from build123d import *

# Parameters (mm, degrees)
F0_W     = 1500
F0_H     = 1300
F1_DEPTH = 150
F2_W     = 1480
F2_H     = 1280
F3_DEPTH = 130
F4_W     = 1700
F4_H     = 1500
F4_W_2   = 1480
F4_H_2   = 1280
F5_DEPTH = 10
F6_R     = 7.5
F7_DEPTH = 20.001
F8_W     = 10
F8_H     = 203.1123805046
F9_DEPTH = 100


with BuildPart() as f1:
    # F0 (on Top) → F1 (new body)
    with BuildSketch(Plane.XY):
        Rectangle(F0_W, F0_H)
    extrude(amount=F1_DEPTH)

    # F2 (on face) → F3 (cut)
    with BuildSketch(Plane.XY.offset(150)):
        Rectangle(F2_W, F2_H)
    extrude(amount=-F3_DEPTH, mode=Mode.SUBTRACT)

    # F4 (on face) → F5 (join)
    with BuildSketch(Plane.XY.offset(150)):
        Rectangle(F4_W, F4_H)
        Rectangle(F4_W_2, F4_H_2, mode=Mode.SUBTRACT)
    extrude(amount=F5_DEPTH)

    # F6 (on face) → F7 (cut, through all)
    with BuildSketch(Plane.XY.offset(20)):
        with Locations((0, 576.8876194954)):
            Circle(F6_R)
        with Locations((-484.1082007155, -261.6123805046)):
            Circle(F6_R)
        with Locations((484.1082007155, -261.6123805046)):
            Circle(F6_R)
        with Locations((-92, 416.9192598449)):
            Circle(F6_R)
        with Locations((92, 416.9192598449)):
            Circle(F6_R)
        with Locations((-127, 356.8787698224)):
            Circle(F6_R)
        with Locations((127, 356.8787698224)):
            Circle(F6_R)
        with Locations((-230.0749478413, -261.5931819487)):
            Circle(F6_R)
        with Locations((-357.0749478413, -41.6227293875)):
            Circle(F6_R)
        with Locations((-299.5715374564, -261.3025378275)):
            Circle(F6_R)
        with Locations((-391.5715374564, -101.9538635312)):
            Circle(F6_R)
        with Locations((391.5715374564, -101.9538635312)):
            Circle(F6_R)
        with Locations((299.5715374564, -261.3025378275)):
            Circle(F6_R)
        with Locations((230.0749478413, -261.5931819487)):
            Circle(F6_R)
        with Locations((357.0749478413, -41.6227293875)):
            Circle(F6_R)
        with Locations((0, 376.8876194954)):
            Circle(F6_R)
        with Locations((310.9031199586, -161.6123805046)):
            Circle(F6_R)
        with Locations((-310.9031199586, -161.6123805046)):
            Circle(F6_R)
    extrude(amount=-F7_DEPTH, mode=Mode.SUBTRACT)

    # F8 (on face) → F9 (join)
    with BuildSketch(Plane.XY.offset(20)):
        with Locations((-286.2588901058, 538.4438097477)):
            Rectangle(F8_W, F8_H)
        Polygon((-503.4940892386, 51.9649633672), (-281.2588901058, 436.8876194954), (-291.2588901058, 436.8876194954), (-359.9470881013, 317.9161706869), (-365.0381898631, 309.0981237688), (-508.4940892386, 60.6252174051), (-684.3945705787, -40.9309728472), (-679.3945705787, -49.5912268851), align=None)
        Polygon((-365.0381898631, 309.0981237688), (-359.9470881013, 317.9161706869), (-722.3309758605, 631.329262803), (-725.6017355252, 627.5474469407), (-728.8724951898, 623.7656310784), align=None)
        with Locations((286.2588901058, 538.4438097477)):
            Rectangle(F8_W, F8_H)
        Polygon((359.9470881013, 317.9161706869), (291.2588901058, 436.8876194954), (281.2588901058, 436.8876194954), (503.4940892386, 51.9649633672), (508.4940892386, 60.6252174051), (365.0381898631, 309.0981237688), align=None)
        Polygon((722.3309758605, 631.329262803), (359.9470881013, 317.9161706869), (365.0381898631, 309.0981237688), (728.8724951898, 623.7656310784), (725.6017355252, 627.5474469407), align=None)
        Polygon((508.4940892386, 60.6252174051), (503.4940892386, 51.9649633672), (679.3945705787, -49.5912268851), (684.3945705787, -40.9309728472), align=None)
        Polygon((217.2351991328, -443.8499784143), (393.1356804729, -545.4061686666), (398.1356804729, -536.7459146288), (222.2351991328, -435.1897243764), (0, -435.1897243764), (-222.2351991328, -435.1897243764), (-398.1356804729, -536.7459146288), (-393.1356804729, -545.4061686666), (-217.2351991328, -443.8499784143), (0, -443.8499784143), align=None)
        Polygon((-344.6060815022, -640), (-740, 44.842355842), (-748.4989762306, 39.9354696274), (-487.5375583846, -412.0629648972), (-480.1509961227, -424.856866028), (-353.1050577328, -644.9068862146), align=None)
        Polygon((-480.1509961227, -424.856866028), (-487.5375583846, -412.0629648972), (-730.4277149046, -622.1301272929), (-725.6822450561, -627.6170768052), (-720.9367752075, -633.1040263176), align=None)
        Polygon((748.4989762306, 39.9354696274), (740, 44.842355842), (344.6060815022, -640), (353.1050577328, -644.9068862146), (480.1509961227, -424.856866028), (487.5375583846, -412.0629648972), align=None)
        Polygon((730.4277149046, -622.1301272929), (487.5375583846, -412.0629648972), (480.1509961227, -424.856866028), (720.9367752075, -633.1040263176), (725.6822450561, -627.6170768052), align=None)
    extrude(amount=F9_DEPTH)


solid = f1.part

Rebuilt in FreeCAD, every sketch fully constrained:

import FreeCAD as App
import Part
import Sketcher
from FreeCAD import Vector
Q = App.Units.Quantity

doc = App.newDocument("Part")
params = doc.addObject("Spreadsheet::Sheet", "Params")
for row, (alias, value) in enumerate([
    ("sketch1_width", "1500 mm"),
    ("sketch1_height", "1300 mm"),
    ("pad1_length", "150 mm"),
    ("sketch2_width", "1480 mm"),
    ("sketch2_height", "1280 mm"),
    ("pocket1_length", "130 mm"),
    ("sketch3_width", "1700 mm"),
    ("sketch3_width2", "1480 mm"),
    ("sketch3_height", "1500 mm"),
    ("sketch3_height2", "1280 mm"),
    ("pad2_length", "10 mm"),
    ("sketch4_diameter", "15 mm"),
    ("sketch5_width", "10 mm"),
    ("sketch5_length", "5 mm"),
    ("sketch5_length2", "10 mm"),
    ("pad3_length", "100 mm"),
], start=1):
    params.set(f"A{row}", alias)
    params.set(f"B{row}", "=" + value)
    params.setAlias(f"B{row}", alias)

body = doc.addObject("PartDesign::Body", "Body")

sketch1 = doc.addObject("Sketcher::SketchObject", "Sketch")
body.addObject(sketch1)
sketch1.AttachmentSupport = (doc.XY_Plane, [""])
sketch1.MapMode = "FlatFace"
sketch1.addGeometry(Part.LineSegment(Vector(-750, 650, 0), Vector(-750, -650, 0)), False)
sketch1.addGeometry(Part.LineSegment(Vector(-750, -650, 0), Vector(750, -650, 0)), False)
sketch1.addGeometry(Part.LineSegment(Vector(750, -650, 0), Vector(750, 650, 0)), False)
sketch1.addGeometry(Part.LineSegment(Vector(750, 650, 0), Vector(-750, 650, 0)), False)
sketch1.addConstraint(Sketcher.Constraint("Coincident", 0, 2, 1, 1))
sketch1.addConstraint(Sketcher.Constraint("Coincident", 1, 2, 2, 1))
sketch1.addConstraint(Sketcher.Constraint("Coincident", 2, 2, 3, 1))
sketch1.addConstraint(Sketcher.Constraint("Coincident", 3, 2, 0, 1))
sketch1.addConstraint(Sketcher.Constraint("Vertical", 0))
sketch1.addConstraint(Sketcher.Constraint("Horizontal", 1))
sketch1.addConstraint(Sketcher.Constraint("Vertical", 2))
sketch1.addConstraint(Sketcher.Constraint("Horizontal", 3))
sketch1.addConstraint(Sketcher.Constraint("Symmetric", 0, 2, 2, 2, -1, 1))
sketch1.addConstraint(Sketcher.Constraint("DistanceX", 1, 1, 1, 2, 1500.0))
sketch1.addConstraint(Sketcher.Constraint("DistanceY", 0, 2, 0, 1, 1300.0))
sketch1.setExpression("Constraints[9]", "Params.sketch1_width")
sketch1.setExpression("Constraints[10]", "Params.sketch1_height")
pad1 = doc.addObject("PartDesign::Pad", "Pad")
body.addObject(pad1)
pad1.Profile = sketch1
pad1.setExpression("Length", "Params.pad1_length")

sketch2 = doc.addObject("Sketcher::SketchObject", "Sketch001")
body.addObject(sketch2)
sketch2.AttachmentSupport = (doc.XY_Plane, [""])
sketch2.MapMode = "FlatFace"
sketch2.AttachmentOffset = App.Placement(Vector(0, 0, 150), App.Rotation())
sketch2.addGeometry(Part.LineSegment(Vector(-740, 640, 0), Vector(-740, -640, 0)), False)
sketch2.addGeometry(Part.LineSegment(Vector(-740, -640, 0), Vector(740, -640, 0)), False)
sketch2.addGeometry(Part.LineSegment(Vector(740, -640, 0), Vector(740, 640, 0)), False)
sketch2.addGeometry(Part.LineSegment(Vector(740, 640, 0), Vector(-740, 640, 0)), False)
sketch2.addConstraint(Sketcher.Constraint("Coincident", 0, 2, 1, 1))
sketch2.addConstraint(Sketcher.Constraint("Coincident", 1, 2, 2, 1))
sketch2.addConstraint(Sketcher.Constraint("Coincident", 2, 2, 3, 1))
sketch2.addConstraint(Sketcher.Constraint("Coincident", 3, 2, 0, 1))
sketch2.addConstraint(Sketcher.Constraint("Vertical", 0))
sketch2.addConstraint(Sketcher.Constraint("Horizontal", 1))
sketch2.addConstraint(Sketcher.Constraint("Vertical", 2))
sketch2.addConstraint(Sketcher.Constraint("Horizontal", 3))
sketch2.addConstraint(Sketcher.Constraint("Symmetric", 0, 2, 2, 2, -1, 1))
sketch2.addConstraint(Sketcher.Constraint("DistanceX", 1, 1, 1, 2, 1480.0))
sketch2.addConstraint(Sketcher.Constraint("DistanceY", 0, 2, 0, 1, 1280.0))
sketch2.setExpression("Constraints[9]", "Params.sketch2_width")
sketch2.setExpression("Constraints[10]", "Params.sketch2_height")
pocket1 = doc.addObject("PartDesign::Pocket", "Pocket")
body.addObject(pocket1)
pocket1.Profile = sketch2
pocket1.setExpression("Length", "Params.pocket1_length")

sketch3 = doc.addObject("Sketcher::SketchObject", "Sketch002")
body.addObject(sketch3)
sketch3.AttachmentSupport = (doc.XY_Plane, [""])
sketch3.MapMode = "FlatFace"
sketch3.AttachmentOffset = App.Placement(Vector(0, 0, 150), App.Rotation())
sketch3.addGeometry(Part.LineSegment(Vector(-850, 750, 0), Vector(-850, -750, 0)), False)
sketch3.addGeometry(Part.LineSegment(Vector(-850, -750, 0), Vector(850, -750, 0)), False)
sketch3.addGeometry(Part.LineSegment(Vector(850, -750, 0), Vector(850, 750, 0)), False)
sketch3.addGeometry(Part.LineSegment(Vector(850, 750, 0), Vector(-850, 750, 0)), False)
sketch3.addGeometry(Part.LineSegment(Vector(740, -640, 0), Vector(-740, -640, 0)), False)
sketch3.addGeometry(Part.LineSegment(Vector(-740, -640, 0), Vector(-740, 640, 0)), False)
sketch3.addGeometry(Part.LineSegment(Vector(-740, 640, 0), Vector(740, 640, 0)), False)
sketch3.addGeometry(Part.LineSegment(Vector(740, 640, 0), Vector(740, -640, 0)), False)
sketch3.addConstraint(Sketcher.Constraint("Coincident", 0, 2, 1, 1))
sketch3.addConstraint(Sketcher.Constraint("Coincident", 1, 2, 2, 1))
sketch3.addConstraint(Sketcher.Constraint("Coincident", 2, 2, 3, 1))
sketch3.addConstraint(Sketcher.Constraint("Coincident", 3, 2, 0, 1))
sketch3.addConstraint(Sketcher.Constraint("Coincident", 4, 2, 5, 1))
sketch3.addConstraint(Sketcher.Constraint("Coincident", 5, 2, 6, 1))
sketch3.addConstraint(Sketcher.Constraint("Coincident", 6, 2, 7, 1))
sketch3.addConstraint(Sketcher.Constraint("Coincident", 7, 2, 4, 1))
sketch3.addConstraint(Sketcher.Constraint("Vertical", 0))
sketch3.addConstraint(Sketcher.Constraint("Horizontal", 1))
sketch3.addConstraint(Sketcher.Constraint("Vertical", 2))
sketch3.addConstraint(Sketcher.Constraint("Horizontal", 3))
sketch3.addConstraint(Sketcher.Constraint("Horizontal", 4))
sketch3.addConstraint(Sketcher.Constraint("Vertical", 5))
sketch3.addConstraint(Sketcher.Constraint("Horizontal", 6))
sketch3.addConstraint(Sketcher.Constraint("Vertical", 7))
sketch3.addConstraint(Sketcher.Constraint("Symmetric", 0, 2, 2, 2, -1, 1))
sketch3.addConstraint(Sketcher.Constraint("Symmetric", 4, 2, 6, 2, -1, 1))
sketch3.addConstraint(Sketcher.Constraint("DistanceX", 1, 1, 1, 2, 1700.0))
sketch3.addConstraint(Sketcher.Constraint("DistanceX", 4, 2, 4, 1, 1480.0))
sketch3.addConstraint(Sketcher.Constraint("DistanceY", 0, 2, 0, 1, 1500.0))
sketch3.addConstraint(Sketcher.Constraint("DistanceY", 5, 1, 5, 2, 1280.0))
sketch3.setExpression("Constraints[18]", "Params.sketch3_width")
sketch3.setExpression("Constraints[19]", "Params.sketch3_width2")
sketch3.setExpression("Constraints[20]", "Params.sketch3_height")
sketch3.setExpression("Constraints[21]", "Params.sketch3_height2")
pad2 = doc.addObject("PartDesign::Pad", "Pad001")
body.addObject(pad2)
pad2.Profile = sketch3
pad2.setExpression("Length", "Params.pad2_length")

sketch4 = doc.addObject("Sketcher::SketchObject", "Sketch003")
body.addObject(sketch4)
sketch4.AttachmentSupport = (doc.XY_Plane, [""])
sketch4.MapMode = "FlatFace"
sketch4.AttachmentOffset = App.Placement(Vector(0, 0, 20), App.Rotation())
sketch4.addGeometry(Part.Circle(Vector(0, 577, 0), Vector(0, 0, 1), 8), False)
sketch4.addGeometry(Part.Circle(Vector(-484, -262, 0), Vector(0, 0, 1), 8), False)
sketch4.addGeometry(Part.Circle(Vector(484, -262, 0), Vector(0, 0, 1), 8), False)
sketch4.addGeometry(Part.Circle(Vector(-92, 417, 0), Vector(0, 0, 1), 8), False)
sketch4.addGeometry(Part.Circle(Vector(92, 417, 0), Vector(0, 0, 1), 8), False)
sketch4.addGeometry(Part.Circle(Vector(-127, 357, 0), Vector(0, 0, 1), 8), False)
sketch4.addGeometry(Part.Circle(Vector(127, 357, 0), Vector(0, 0, 1), 8), False)
sketch4.addGeometry(Part.Circle(Vector(-230, -262, 0), Vector(0, 0, 1), 8), False)
sketch4.addGeometry(Part.Circle(Vector(-357, -42, 0), Vector(0, 0, 1), 8), False)
sketch4.addGeometry(Part.Circle(Vector(-300, -261, 0), Vector(0, 0, 1), 8), False)
sketch4.addGeometry(Part.Circle(Vector(-392, -102, 0), Vector(0, 0, 1), 8), False)
sketch4.addGeometry(Part.Circle(Vector(392, -102, 0), Vector(0, 0, 1), 8), False)
sketch4.addGeometry(Part.Circle(Vector(300, -261, 0), Vector(0, 0, 1), 8), False)
sketch4.addGeometry(Part.Circle(Vector(230, -262, 0), Vector(0, 0, 1), 8), False)
sketch4.addGeometry(Part.Circle(Vector(357, -42, 0), Vector(0, 0, 1), 8), False)
sketch4.addGeometry(Part.Circle(Vector(0, 377, 0), Vector(0, 0, 1), 8), False)
sketch4.addGeometry(Part.Circle(Vector(311, -162, 0), Vector(0, 0, 1), 8), False)
sketch4.addGeometry(Part.Circle(Vector(-311, -162, 0), Vector(0, 0, 1), 8), False)
sketch4.addConstraint(Sketcher.Constraint("Equal", 0, 1))
sketch4.addConstraint(Sketcher.Constraint("Equal", 1, 2))
sketch4.addConstraint(Sketcher.Constraint("Equal", 2, 3))
sketch4.addConstraint(Sketcher.Constraint("Equal", 3, 4))
sketch4.addConstraint(Sketcher.Constraint("Equal", 4, 5))
sketch4.addConstraint(Sketcher.Constraint("Equal", 5, 6))
sketch4.addConstraint(Sketcher.Constraint("Equal", 6, 7))
sketch4.addConstraint(Sketcher.Constraint("Equal", 7, 8))
sketch4.addConstraint(Sketcher.Constraint("Equal", 8, 9))
sketch4.addConstraint(Sketcher.Constraint("Equal", 9, 10))
sketch4.addConstraint(Sketcher.Constraint("Equal", 10, 11))
sketch4.addConstraint(Sketcher.Constraint("Equal", 11, 12))
sketch4.addConstraint(Sketcher.Constraint("Equal", 12, 13))
sketch4.addConstraint(Sketcher.Constraint("Equal", 13, 14))
sketch4.addConstraint(Sketcher.Constraint("Equal", 14, 15))
sketch4.addConstraint(Sketcher.Constraint("Equal", 15, 16))
sketch4.addConstraint(Sketcher.Constraint("Equal", 16, 17))
sketch4.addConstraint(Sketcher.Constraint("Symmetric", 1, 3, 2, 3, -2))
sketch4.addConstraint(Sketcher.Constraint("Symmetric", 3, 3, 4, 3, -2))
sketch4.addConstraint(Sketcher.Constraint("Symmetric", 5, 3, 6, 3, -2))
sketch4.addConstraint(Sketcher.Constraint("Symmetric", 10, 3, 11, 3, -2))
sketch4.addConstraint(Sketcher.Constraint("Symmetric", 9, 3, 12, 3, -2))
sketch4.addConstraint(Sketcher.Constraint("Symmetric", 7, 3, 13, 3, -2))
sketch4.addConstraint(Sketcher.Constraint("Symmetric", 8, 3, 14, 3, -2))
sketch4.addConstraint(Sketcher.Constraint("Symmetric", 16, 3, 17, 3, -2))
sketch4.addConstraint(Sketcher.Constraint("PointOnObject", 0, 3, -2))
sketch4.addConstraint(Sketcher.Constraint("PointOnObject", 15, 3, -2))
sketch4.addConstraint(Sketcher.Constraint("Diameter", 0, 15.0))
sketch4.addConstraint(Sketcher.Constraint("DistanceX", 3, 3, -1, 1, 92.0))
sketch4.addConstraint(Sketcher.Constraint("DistanceX", 5, 3, -1, 1, 127.0))
sketch4.addConstraint(Sketcher.Constraint("DistanceX", 8, 3, 7, 3, 127.0))
sketch4.addConstraint(Sketcher.Constraint("DistanceX", 10, 3, 9, 3, 92.0))
sketch4.addConstraint(Sketcher.Constraint("DistanceY", 15, 3, 0, 3, 200.0))
sketch4.addConstraint(Sketcher.Constraint("DistanceY", 2, 3, 16, 3, 100.0))
sketch4.addConstraint(Sketcher.Constraint("DistanceY", 1, 3, 0, 3, 838.5))
sketch4.addConstraint(Sketcher.Constraint("DistanceX", 1, 3, -1, 1, 484.108201))
sketch4.addConstraint(Sketcher.Constraint("DistanceY", 1, 3, 7, 3, 0.019199))
sketch4.addConstraint(Sketcher.Constraint("DistanceY", 8, 3, 5, 3, 398.501499))
sketch4.addConstraint(Sketcher.Constraint("DistanceY", -1, 1, 0, 3, 576.887619))
sketch4.addConstraint(Sketcher.Constraint("DistanceY", -1, 1, 3, 3, 416.91926))
sketch4.addConstraint(Sketcher.Constraint("DistanceY", -1, 1, 5, 3, 356.87877))
sketch4.addConstraint(Sketcher.Constraint("DistanceX", -1, 1, 16, 3, 310.90312))
sketch4.addConstraint(Sketcher.Constraint("DistanceX", 7, 3, 2, 3, 714.183149))
sketch4.addConstraint(Sketcher.Constraint("DistanceX", 9, 3, 7, 3, 69.49659))
sketch4.addConstraint(Sketcher.Constraint("DistanceY", 9, 3, 8, 3, 219.679808))
sketch4.addConstraint(Sketcher.Constraint("DistanceY", 7, 3, 10, 3, 159.639318))
sketch4.setExpression("Constraints[27]", "Params.sketch4_diameter")
pocket2 = doc.addObject("PartDesign::Pocket", "Pocket001")
body.addObject(pocket2)
pocket2.Profile = sketch4
pocket2.Type = "ThroughAll"

sketch5 = doc.addObject("Sketcher::SketchObject", "Sketch004")
body.addObject(sketch5)
sketch5.AttachmentSupport = (doc.XY_Plane, [""])
sketch5.MapMode = "FlatFace"
sketch5.AttachmentOffset = App.Placement(Vector(0, 0, 20), App.Rotation())
sketch5.addGeometry(Part.LineSegment(Vector(-291, 640, 0), Vector(-291, 437, 0)), False)
sketch5.addGeometry(Part.LineSegment(Vector(-291, 437, 0), Vector(-360, 318, 0)), False)
sketch5.addGeometry(Part.LineSegment(Vector(-360, 318, 0), Vector(-722, 631, 0)), False)
sketch5.addGeometry(Part.LineSegment(Vector(-722, 631, 0), Vector(-726, 628, 0)), False)
sketch5.addGeometry(Part.LineSegment(Vector(-726, 628, 0), Vector(-729, 624, 0)), False)
sketch5.addGeometry(Part.LineSegment(Vector(-729, 624, 0), Vector(-365, 309, 0)), False)
sketch5.addGeometry(Part.LineSegment(Vector(-365, 309, 0), Vector(-508, 61, 0)), False)
sketch5.addGeometry(Part.LineSegment(Vector(-508, 61, 0), Vector(-684, -41, 0)), False)
sketch5.addGeometry(Part.LineSegment(Vector(-684, -41, 0), Vector(-679, -50, 0)), False)
sketch5.addGeometry(Part.LineSegment(Vector(-679, -50, 0), Vector(-503, 52, 0)), False)
sketch5.addGeometry(Part.LineSegment(Vector(-503, 52, 0), Vector(-281, 437, 0)), False)
sketch5.addGeometry(Part.LineSegment(Vector(-281, 437, 0), Vector(-281, 640, 0)), False)
sketch5.addGeometry(Part.LineSegment(Vector(-281, 640, 0), Vector(-291, 640, 0)), False)
sketch5.addGeometry(Part.LineSegment(Vector(281, 640, 0), Vector(281, 437, 0)), False)
sketch5.addGeometry(Part.LineSegment(Vector(281, 437, 0), Vector(503, 52, 0)), False)
sketch5.addGeometry(Part.LineSegment(Vector(503, 52, 0), Vector(679, -50, 0)), False)
sketch5.addGeometry(Part.LineSegment(Vector(679, -50, 0), Vector(684, -41, 0)), False)
sketch5.addGeometry(Part.LineSegment(Vector(684, -41, 0), Vector(508, 61, 0)), False)
sketch5.addGeometry(Part.LineSegment(Vector(508, 61, 0), Vector(365, 309, 0)), False)
sketch5.addGeometry(Part.LineSegment(Vector(365, 309, 0), Vector(729, 624, 0)), False)
sketch5.addGeometry(Part.LineSegment(Vector(729, 624, 0), Vector(726, 628, 0)), False)
sketch5.addGeometry(Part.LineSegment(Vector(726, 628, 0), Vector(722, 631, 0)), False)
sketch5.addGeometry(Part.LineSegment(Vector(722, 631, 0), Vector(360, 318, 0)), False)
sketch5.addGeometry(Part.LineSegment(Vector(360, 318, 0), Vector(291, 437, 0)), False)
sketch5.addGeometry(Part.LineSegment(Vector(291, 437, 0), Vector(291, 640, 0)), False)
sketch5.addGeometry(Part.LineSegment(Vector(291, 640, 0), Vector(281, 640, 0)), False)
sketch5.addGeometry(Part.LineSegment(Vector(217, -444, 0), Vector(393, -545, 0)), False)
sketch5.addGeometry(Part.LineSegment(Vector(393, -545, 0), Vector(398, -537, 0)), False)
sketch5.addGeometry(Part.LineSegment(Vector(398, -537, 0), Vector(222, -435, 0)), False)
sketch5.addGeometry(Part.LineSegment(Vector(222, -435, 0), Vector(-222, -435, 0)), False)
sketch5.addGeometry(Part.LineSegment(Vector(-222, -435, 0), Vector(-398, -537, 0)), False)
sketch5.addGeometry(Part.LineSegment(Vector(-398, -537, 0), Vector(-393, -545, 0)), False)
sketch5.addGeometry(Part.LineSegment(Vector(-393, -545, 0), Vector(-217, -444, 0)), False)
sketch5.addGeometry(Part.LineSegment(Vector(-217, -444, 0), Vector(217, -444, 0)), False)
sketch5.addGeometry(Part.LineSegment(Vector(-345, -640, 0), Vector(-740, 45, 0)), False)
sketch5.addGeometry(Part.LineSegment(Vector(-740, 45, 0), Vector(-748, 40, 0)), False)
sketch5.addGeometry(Part.LineSegment(Vector(-748, 40, 0), Vector(-488, -412, 0)), False)
sketch5.addGeometry(Part.LineSegment(Vector(-488, -412, 0), Vector(-730, -622, 0)), False)
sketch5.addGeometry(Part.LineSegment(Vector(-730, -622, 0), Vector(-726, -628, 0)), False)
sketch5.addGeometry(Part.LineSegment(Vector(-726, -628, 0), Vector(-721, -633, 0)), False)
sketch5.addGeometry(Part.LineSegment(Vector(-721, -633, 0), Vector(-480, -425, 0)), False)
sketch5.addGeometry(Part.LineSegment(Vector(-480, -425, 0), Vector(-353, -645, 0)), False)
sketch5.addGeometry(Part.LineSegment(Vector(-353, -645, 0), Vector(-345, -640, 0)), False)
sketch5.addGeometry(Part.LineSegment(Vector(748, 40, 0), Vector(740, 45, 0)), False)
sketch5.addGeometry(Part.LineSegment(Vector(740, 45, 0), Vector(345, -640, 0)), False)
sketch5.addGeometry(Part.LineSegment(Vector(345, -640, 0), Vector(353, -645, 0)), False)
sketch5.addGeometry(Part.LineSegment(Vector(353, -645, 0), Vector(480, -425, 0)), False)
sketch5.addGeometry(Part.LineSegment(Vector(480, -425, 0), Vector(721, -633, 0)), False)
sketch5.addGeometry(Part.LineSegment(Vector(721, -633, 0), Vector(726, -628, 0)), False)
sketch5.addGeometry(Part.LineSegment(Vector(726, -628, 0), Vector(730, -622, 0)), False)
sketch5.addGeometry(Part.LineSegment(Vector(730, -622, 0), Vector(488, -412, 0)), False)
sketch5.addGeometry(Part.LineSegment(Vector(488, -412, 0), Vector(748, 40, 0)), False)
sketch5.addConstraint(Sketcher.Constraint("Coincident", 0, 2, 1, 1))
sketch5.addConstraint(Sketcher.Constraint("Coincident", 1, 2, 2, 1))
sketch5.addConstraint(Sketcher.Constraint("Coincident", 2, 2, 3, 1))
sketch5.addConstraint(Sketcher.Constraint("Coincident", 3, 2, 4, 1))
sketch5.addConstraint(Sketcher.Constraint("Coincident", 4, 2, 5, 1))
sketch5.addConstraint(Sketcher.Constraint("Coincident", 5, 2, 6, 1))
sketch5.addConstraint(Sketcher.Constraint("Coincident", 6, 2, 7, 1))
sketch5.addConstraint(Sketcher.Constraint("Coincident", 7, 2, 8, 1))
sketch5.addConstraint(Sketcher.Constraint("Coincident", 8, 2, 9, 1))
sketch5.addConstraint(Sketcher.Constraint("Coincident", 9, 2, 10, 1))
sketch5.addConstraint(Sketcher.Constraint("Coincident", 10, 2, 11, 1))
sketch5.addConstraint(Sketcher.Constraint("Coincident", 11, 2, 12, 1))
sketch5.addConstraint(Sketcher.Constraint("Coincident", 12, 2, 0, 1))
sketch5.addConstraint(Sketcher.Constraint("Coincident", 13, 2, 14, 1))
sketch5.addConstraint(Sketcher.Constraint("Coincident", 14, 2, 15, 1))
sketch5.addConstraint(Sketcher.Constraint("Coincident", 15, 2, 16, 1))
sketch5.addConstraint(Sketcher.Constraint("Coincident", 16, 2, 17, 1))
sketch5.addConstraint(Sketcher.Constraint("Coincident", 17, 2, 18, 1))
sketch5.addConstraint(Sketcher.Constraint("Coincident", 18, 2, 19, 1))
sketch5.addConstraint(Sketcher.Constraint("Coincident", 19, 2, 20, 1))
sketch5.addConstraint(Sketcher.Constraint("Coincident", 20, 2, 21, 1))
sketch5.addConstraint(Sketcher.Constraint("Coincident", 21, 2, 22, 1))
sketch5.addConstraint(Sketcher.Constraint("Coincident", 22, 2, 23, 1))
sketch5.addConstraint(Sketcher.Constraint("Coincident", 23, 2, 24, 1))
sketch5.addConstraint(Sketcher.Constraint("Coincident", 24, 2, 25, 1))
sketch5.addConstraint(Sketcher.Constraint("Coincident", 25, 2, 13, 1))
sketch5.addConstraint(Sketcher.Constraint("Coincident", 26, 2, 27, 1))
sketch5.addConstraint(Sketcher.Constraint("Coincident", 27, 2, 28, 1))
sketch5.addConstraint(Sketcher.Constraint("Coincident", 28, 2, 29, 1))
sketch5.addConstraint(Sketcher.Constraint("Coincident", 29, 2, 30, 1))
sketch5.addConstraint(Sketcher.Constraint("Coincident", 30, 2, 31, 1))
sketch5.addConstraint(Sketcher.Constraint("Coincident", 31, 2, 32, 1))
sketch5.addConstraint(Sketcher.Constraint("Coincident", 32, 2, 33, 1))
sketch5.addConstraint(Sketcher.Constraint("Coincident", 33, 2, 26, 1))
sketch5.addConstraint(Sketcher.Constraint("Coincident", 34, 2, 35, 1))
sketch5.addConstraint(Sketcher.Constraint("Coincident", 35, 2, 36, 1))
sketch5.addConstraint(Sketcher.Constraint("Coincident", 36, 2, 37, 1))
sketch5.addConstraint(Sketcher.Constraint("Coincident", 37, 2, 38, 1))
sketch5.addConstraint(Sketcher.Constraint("Coincident", 38, 2, 39, 1))
sketch5.addConstraint(Sketcher.Constraint("Coincident", 39, 2, 40, 1))
sketch5.addConstraint(Sketcher.Constraint("Coincident", 40, 2, 41, 1))
sketch5.addConstraint(Sketcher.Constraint("Coincident", 41, 2, 42, 1))
sketch5.addConstraint(Sketcher.Constraint("Coincident", 42, 2, 34, 1))
sketch5.addConstraint(Sketcher.Constraint("Coincident", 43, 2, 44, 1))
sketch5.addConstraint(Sketcher.Constraint("Coincident", 44, 2, 45, 1))
sketch5.addConstraint(Sketcher.Constraint("Coincident", 45, 2, 46, 1))
sketch5.addConstraint(Sketcher.Constraint("Coincident", 46, 2, 47, 1))
sketch5.addConstraint(Sketcher.Constraint("Coincident", 47, 2, 48, 1))
sketch5.addConstraint(Sketcher.Constraint("Coincident", 48, 2, 49, 1))
sketch5.addConstraint(Sketcher.Constraint("Coincident", 49, 2, 50, 1))
sketch5.addConstraint(Sketcher.Constraint("Coincident", 50, 2, 51, 1))
sketch5.addConstraint(Sketcher.Constraint("Coincident", 51, 2, 43, 1))
sketch5.addConstraint(Sketcher.Constraint("Vertical", 0))
sketch5.addConstraint(Sketcher.Constraint("Vertical", 11))
sketch5.addConstraint(Sketcher.Constraint("Horizontal", 12))
sketch5.addConstraint(Sketcher.Constraint("Vertical", 13))
sketch5.addConstraint(Sketcher.Constraint("Vertical", 24))
sketch5.addConstraint(Sketcher.Constraint("Horizontal", 25))
sketch5.addConstraint(Sketcher.Constraint("Horizontal", 29))
sketch5.addConstraint(Sketcher.Constraint("Horizontal", 33))
sketch5.addConstraint(Sketcher.Constraint("Symmetric", 10, 2, 13, 2, -2))
sketch5.addConstraint(Sketcher.Constraint("Symmetric", 9, 2, 14, 2, -2))
sketch5.addConstraint(Sketcher.Constraint("Symmetric", 8, 2, 15, 2, -2))
sketch5.addConstraint(Sketcher.Constraint("Symmetric", 7, 2, 16, 2, -2))
sketch5.addConstraint(Sketcher.Constraint("Symmetric", 6, 2, 17, 2, -2))
sketch5.addConstraint(Sketcher.Constraint("Symmetric", 5, 2, 18, 2, -2))
sketch5.addConstraint(Sketcher.Constraint("Symmetric", 4, 2, 19, 2, -2))
sketch5.addConstraint(Sketcher.Constraint("Symmetric", 3, 2, 20, 2, -2))
sketch5.addConstraint(Sketcher.Constraint("Symmetric", 2, 2, 21, 2, -2))
sketch5.addConstraint(Sketcher.Constraint("Symmetric", 1, 2, 22, 2, -2))
sketch5.addConstraint(Sketcher.Constraint("Symmetric", 0, 2, 23, 2, -2))
sketch5.addConstraint(Sketcher.Constraint("Symmetric", 27, 2, 30, 2, -2))
sketch5.addConstraint(Sketcher.Constraint("Symmetric", 26, 2, 31, 2, -2))
sketch5.addConstraint(Sketcher.Constraint("Symmetric", 34, 2, 43, 2, -2))
sketch5.addConstraint(Sketcher.Constraint("Symmetric", 42, 2, 44, 2, -2))
sketch5.addConstraint(Sketcher.Constraint("Symmetric", 41, 2, 45, 2, -2))
sketch5.addConstraint(Sketcher.Constraint("Symmetric", 40, 2, 46, 2, -2))
sketch5.addConstraint(Sketcher.Constraint("Symmetric", 39, 2, 47, 2, -2))
sketch5.addConstraint(Sketcher.Constraint("Symmetric", 38, 2, 48, 2, -2))
sketch5.addConstraint(Sketcher.Constraint("Symmetric", 37, 2, 49, 2, -2))
sketch5.addConstraint(Sketcher.Constraint("Symmetric", 36, 2, 50, 2, -2))
sketch5.addConstraint(Sketcher.Constraint("Symmetric", 35, 2, 51, 2, -2))
sketch5.addConstraint(Sketcher.Constraint("Perpendicular", 2, 3))
sketch5.addConstraint(Sketcher.Constraint("Parallel", 3, 4))
sketch5.addConstraint(Sketcher.Constraint("Perpendicular", 4, 5))
sketch5.addConstraint(Sketcher.Constraint("Parallel", 1, 6))
sketch5.addConstraint(Sketcher.Constraint("Perpendicular", 7, 8))
sketch5.addConstraint(Sketcher.Constraint("Perpendicular", 8, 9))
sketch5.addConstraint(Sketcher.Constraint("Parallel", 6, 10))
sketch5.addConstraint(Sketcher.Constraint("Perpendicular", 9, 14))
sketch5.addConstraint(Sketcher.Constraint("Parallel", 17, 26))
sketch5.addConstraint(Sketcher.Constraint("Perpendicular", 26, 27))
sketch5.addConstraint(Sketcher.Constraint("Perpendicular", 27, 28))
sketch5.addConstraint(Sketcher.Constraint("Perpendicular", 23, 30))
sketch5.addConstraint(Sketcher.Constraint("Perpendicular", 31, 32))
sketch5.addConstraint(Sketcher.Constraint("Perpendicular", 32, 34))
sketch5.addConstraint(Sketcher.Constraint("Perpendicular", 34, 35))
sketch5.addConstraint(Sketcher.Constraint("Perpendicular", 35, 36))
sketch5.addConstraint(Sketcher.Constraint("Parallel", 22, 37))
sketch5.addConstraint(Sketcher.Constraint("Perpendicular", 37, 38))
sketch5.addConstraint(Sketcher.Constraint("Parallel", 38, 39))
sketch5.addConstraint(Sketcher.Constraint("Perpendicular", 39, 40))
sketch5.addConstraint(Sketcher.Constraint("Parallel", 36, 41))
sketch5.addConstraint(Sketcher.Constraint("Perpendicular", 41, 42))
sketch5.addConstraint(Sketcher.Constraint("Horizontal", 0, 2, 10, 2))
sketch5.addConstraint(Sketcher.Constraint("Horizontal", 12, 2, 24, 2))
sketch5.addConstraint(Sketcher.Constraint("Equal", 3, 4))
sketch5.addConstraint(Sketcher.Constraint("Equal", 7, 9))
sketch5.addConstraint(Sketcher.Constraint("Equal", 17, 26))
sketch5.addConstraint(Sketcher.Constraint("Equal", 16, 27))
sketch5.addConstraint(Sketcher.Constraint("Equal", 26, 28))
sketch5.addConstraint(Sketcher.Constraint("Equal", 38, 39))
sketch5.addConstraint(Sketcher.Constraint("Equal", 35, 42))
sketch5.addConstraint(Sketcher.Constraint("DistanceX", 12, 2, 12, 1, 10.0))
sketch5.addConstraint(Sketcher.Constraint("Angle", 1, Q("-120 deg")))
sketch5.addConstraint(Sketcher.Constraint("Distance", 3, 5.0))
sketch5.addConstraint(Sketcher.Constraint("Distance", 8, 10.0))
sketch5.addConstraint(Sketcher.Constraint("DistanceY", -1, 1, 11, 2, 640.0))
sketch5.addConstraint(Sketcher.Constraint("DistanceX", 34, 2, -1, 1, 740.0))
sketch5.addConstraint(Sketcher.Constraint("DistanceY", 42, 2, -1, 1, 640.0))
sketch5.addConstraint(Sketcher.Constraint("DistanceX", 29, 2, 29, 1, 444.470398))
sketch5.addConstraint(Sketcher.Constraint("DistanceX", 6, 2, 1, 2, 148.547001))
sketch5.addConstraint(Sketcher.Constraint("Distance", 10, 444.470398))
sketch5.addConstraint(Sketcher.Constraint("DistanceY", 0, 2, 0, 1, 203.112381))
sketch5.addConstraint(Sketcher.Constraint("DistanceY", 39, 2, 37, 2, 10.973899))
sketch5.addConstraint(Sketcher.Constraint("DistanceY", 40, 2, 36, 2, 12.793901))
sketch5.addConstraint(Sketcher.Constraint("DistanceX", 31, 2, 42, 2, 48.529599))
sketch5.addConstraint(Sketcher.Constraint("DistanceX", 45, 2, 50, 2, 134.432501))
sketch5.addConstraint(Sketcher.Constraint("Distance", 7, 203.112381))
sketch5.addConstraint(Sketcher.Constraint("Distance", 37, 321.12901))
sketch5.addConstraint(Sketcher.Constraint("DistanceX", 0, 2, -1, 1, 291.25889))
sketch5.addConstraint(Sketcher.Constraint("DistanceY", -1, 1, 4, 2, 623.765631))
sketch5.addConstraint(Sketcher.Constraint("DistanceY", 26, 2, -1, 1, 545.406169))
sketch5.addConstraint(Sketcher.Constraint("DistanceY", -1, 1, 35, 2, 39.93547))
sketch5.setExpression("Constraints[113]", "Params.sketch5_width")
sketch5.setExpression("Constraints[115]", "Params.sketch5_length")
sketch5.setExpression("Constraints[116]", "Params.sketch5_length2")
pad3 = doc.addObject("PartDesign::Pad", "Pad002")
body.addObject(pad3)
pad3.Profile = sketch5
pad3.setExpression("Length", "Params.pad3_length")

doc.recompute()
